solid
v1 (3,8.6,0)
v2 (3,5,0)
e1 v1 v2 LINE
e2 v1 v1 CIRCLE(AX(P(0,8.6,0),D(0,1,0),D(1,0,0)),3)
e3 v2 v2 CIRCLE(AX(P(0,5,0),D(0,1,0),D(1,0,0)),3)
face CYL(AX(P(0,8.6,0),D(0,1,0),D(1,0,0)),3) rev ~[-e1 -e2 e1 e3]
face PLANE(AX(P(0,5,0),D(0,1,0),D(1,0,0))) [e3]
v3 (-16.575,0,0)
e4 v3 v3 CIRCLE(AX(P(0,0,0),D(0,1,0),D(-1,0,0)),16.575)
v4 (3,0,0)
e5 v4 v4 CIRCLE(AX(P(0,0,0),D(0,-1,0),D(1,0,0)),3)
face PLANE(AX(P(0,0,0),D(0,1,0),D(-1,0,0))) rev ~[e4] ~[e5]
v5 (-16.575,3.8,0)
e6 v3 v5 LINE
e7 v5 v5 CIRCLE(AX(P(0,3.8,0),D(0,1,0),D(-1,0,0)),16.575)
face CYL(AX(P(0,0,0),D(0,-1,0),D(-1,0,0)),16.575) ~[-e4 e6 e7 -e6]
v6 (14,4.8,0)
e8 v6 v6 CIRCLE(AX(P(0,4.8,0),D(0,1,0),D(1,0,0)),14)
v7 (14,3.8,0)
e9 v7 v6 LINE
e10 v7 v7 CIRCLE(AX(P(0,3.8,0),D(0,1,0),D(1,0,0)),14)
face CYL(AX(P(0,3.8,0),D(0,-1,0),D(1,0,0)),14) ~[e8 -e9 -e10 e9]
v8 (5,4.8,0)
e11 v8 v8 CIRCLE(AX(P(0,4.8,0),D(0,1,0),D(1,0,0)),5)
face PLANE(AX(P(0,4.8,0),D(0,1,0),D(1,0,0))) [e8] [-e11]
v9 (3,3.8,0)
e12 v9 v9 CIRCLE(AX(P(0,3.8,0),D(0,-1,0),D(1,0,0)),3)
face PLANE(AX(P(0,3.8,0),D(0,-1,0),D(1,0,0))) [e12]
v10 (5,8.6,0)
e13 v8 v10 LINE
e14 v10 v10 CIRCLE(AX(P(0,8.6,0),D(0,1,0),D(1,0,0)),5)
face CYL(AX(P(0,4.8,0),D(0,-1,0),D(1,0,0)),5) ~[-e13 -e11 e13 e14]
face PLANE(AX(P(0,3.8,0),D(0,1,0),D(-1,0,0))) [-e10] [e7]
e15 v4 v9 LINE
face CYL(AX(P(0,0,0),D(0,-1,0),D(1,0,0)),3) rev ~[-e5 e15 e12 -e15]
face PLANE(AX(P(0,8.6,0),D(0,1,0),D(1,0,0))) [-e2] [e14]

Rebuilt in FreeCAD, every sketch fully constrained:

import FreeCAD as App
import Part
import Sketcher
from FreeCAD import Vector
Q = App.Units.Quantity

doc = App.newDocument("Part")
params = doc.addObject("Spreadsheet::Sheet", "Params")
for row, (alias, value) in enumerate([
    ("sketch1_diameter", "33.15 mm"),
    ("pad1_length", "3.8 mm"),
    ("sketch2_diameter", "28 mm"),
    ("pad2_length", "1 mm"),
    ("sketch3_diameter", "10 mm"),
    ("pad3_length", "3.8 mm"),
    ("sketch4_diameter", "3.6 mm"),
    ("pocket1_length", "3.6 mm"),
    ("sketch5_diameter", "6 mm"),
    ("sketch5_diameter2", "3.6 mm"),
    ("pocket2_length", "3.6 mm"),
    ("sketch6_diameter", "6 mm"),
    ("pocket3_length", "3.8 mm"),
], start=1):
    params.set(f"A{row}", alias)
    params.set(f"B{row}", "=" + value)
    params.setAlias(f"B{row}", alias)

body = doc.addObject("PartDesign::Body", "Body")

# Sketch on XZ plane
sketch1 = body.newObject("Sketcher::SketchObject", "Sketch")
sketch1.AttachmentSupport = (doc.getObject("XZ_Plane"), [""])
sketch1.MapMode = "FlatFace"
sketch1.addGeometry(Part.Circle(Vector(0, 0, 0), Vector(0, 0, 1), 17), False)
sketch1.addConstraint([
    Sketcher.Constraint("Coincident", 0, 3, -1, 1),
    Sketcher.Constraint("Diameter", 0, Q("33.15 mm")),
])
sketch1.setExpression("Constraints[1]", "Params.sketch1_diameter")
pad1 = body.newObject("PartDesign::Pad", "Pad")
pad1.Profile = sketch1
pad1.setExpression("Length", "Params.pad1_length")
pad1.Reversed = True

# Sketch on XZ plane
sketch2 = body.newObject("Sketcher::SketchObject", "Sketch001")
sketch2.AttachmentSupport = (doc.getObject("XZ_Plane"), [""])
sketch2.MapMode = "FlatFace"
sketch2.AttachmentOffset = App.Placement(Vector(0, 0, -3.8), App.Rotation())
sketch2.addGeometry(Part.Circle(Vector(0, 0, 0), Vector(0, 0, 1), 14), False)
sketch2.addConstraint([
    Sketcher.Constraint("Coincident", 0, 3, -1, 1),
    Sketcher.Constraint("Diameter", 0, Q("28 mm")),
])
sketch2.setExpression("Constraints[1]", "Params.sketch2_diameter")
pad2 = body.newObject("PartDesign::Pad", "Pad001")
pad2.Profile = sketch2
pad2.setExpression("Length", "Params.pad2_length")
pad2.Reversed = True

# Sketch on XZ plane
sketch3 = body.newObject("Sketcher::SketchObject", "Sketch002")
sketch3.AttachmentSupport = (doc.getObject("XZ_Plane"), [""])
sketch3.MapMode = "FlatFace"
sketch3.AttachmentOffset = App.Placement(Vector(0, 0, -4.8), App.Rotation())
sketch3.addGeometry(Part.Circle(Vector(0, 0, 0), Vector(0, 0, 1), 5), False)
sketch3.addConstraint([
    Sketcher.Constraint("Coincident", 0, 3, -1, 1),
    Sketcher.Constraint("Diameter", 0, Q("10 mm")),
])
sketch3.setExpression("Constraints[1]", "Params.sketch3_diameter")
pad3 = body.newObject("PartDesign::Pad", "Pad002")
pad3.Profile = sketch3
pad3.setExpression("Length", "Params.pad3_length")
pad3.Reversed = True

# Sketch on XZ plane
sketch4 = body.newObject("Sketcher::SketchObject", "Sketch003")
sketch4.AttachmentSupport = (doc.getObject("XZ_Plane"), [""])
sketch4.MapMode = "FlatFace"
sketch4.AttachmentOffset = App.Placement(Vector(0, 0, -8.6), App.Rotation())
sketch4.addGeometry(Part.Circle(Vector(0, 0, 0), Vector(0, 0, 1), 1.8), False)
sketch4.addConstraint([
    Sketcher.Constraint("Coincident", 0, 3, -1, 1),
    Sketcher.Constraint("Diameter", 0, Q("3.6 mm")),
])
sketch4.setExpression("Constraints[1]", "Params.sketch4_diameter")
pocket1 = body.newObject("PartDesign::Pocket", "Pocket")
pocket1.Profile = sketch4
pocket1.setExpression("Length", "Params.pocket1_length")
pocket1.Reversed = True

# Sketch on XZ plane
sketch5 = body.newObject("Sketcher::SketchObject", "Sketch004")
sketch5.AttachmentSupport = (doc.getObject("XZ_Plane"), [""])
sketch5.MapMode = "FlatFace"
sketch5.AttachmentOffset = App.Placement(Vector(0, 0, -8.6), App.Rotation())
sketch5.addGeometry([
    Part.Circle(Vector(0, 0, 0), Vector(0, 0, 1), 3),
    Part.Circle(Vector(0, 0, 0), Vector(0, 0, 1), 1.8),
], False)
sketch5.addConstraint([
    Sketcher.Constraint("Coincident", 0, 3, -1, 1),
    Sketcher.Constraint("Coincident", 1, 3, -1, 1),
    Sketcher.Constraint("Diameter", 0, Q("6 mm")),
    Sketcher.Constraint("Diameter", 1, Q("3.6 mm")),
])
sketch5.setExpression("Constraints[2]", "Params.sketch5_diameter")
sketch5.setExpression("Constraints[3]", "Params.sketch5_diameter2")
pocket2 = body.newObject("PartDesign::Pocket", "Pocket001")
pocket2.Profile = sketch5
pocket2.setExpression("Length", "Params.pocket2_length")
pocket2.Reversed = True

# Sketch on XZ plane
sketch6 = body.newObject("Sketcher::SketchObject", "Sketch005")
sketch6.AttachmentSupport = (doc.getObject("XZ_Plane"), [""])
sketch6.MapMode = "FlatFace"
sketch6.addGeometry(Part.Circle(Vector(0, 0, 0), Vector(0, 0, 1), 3), False)
sketch6.addConstraint([
    Sketcher.Constraint("Coincident", 0, 3, -1, 1),
    Sketcher.Constraint("Diameter", 0, Q("6 mm")),
])
sketch6.setExpression("Constraints[1]", "Params.sketch6_diameter")
pocket3 = body.newObject("PartDesign::Pocket", "Pocket002")
pocket3.Profile = sketch6
pocket3.setExpression("Length", "Params.pocket3_length")

doc.recompute()
